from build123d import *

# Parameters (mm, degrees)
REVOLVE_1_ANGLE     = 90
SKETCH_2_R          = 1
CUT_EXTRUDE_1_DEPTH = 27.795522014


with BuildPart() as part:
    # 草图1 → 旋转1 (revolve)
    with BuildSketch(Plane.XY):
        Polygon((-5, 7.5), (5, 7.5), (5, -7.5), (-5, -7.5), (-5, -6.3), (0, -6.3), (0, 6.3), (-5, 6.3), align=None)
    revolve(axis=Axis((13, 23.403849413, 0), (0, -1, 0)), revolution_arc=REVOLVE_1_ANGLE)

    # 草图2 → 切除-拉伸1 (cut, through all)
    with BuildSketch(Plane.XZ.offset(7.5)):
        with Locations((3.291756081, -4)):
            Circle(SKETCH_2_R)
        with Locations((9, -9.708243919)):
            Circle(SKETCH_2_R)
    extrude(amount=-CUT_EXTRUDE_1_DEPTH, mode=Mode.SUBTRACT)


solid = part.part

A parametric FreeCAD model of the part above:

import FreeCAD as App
import Part
import Sketcher
from FreeCAD import Vector
Q = App.Units.Quantity


def add_polygon(sketch, points):
    """Adds a closed chain of lines whose ends are joined by coincident constraints."""
    first, n = sketch.GeometryCount, len(points)
    for a, b in zip(points, points[1:] + points[:1]):
        sketch.addGeometry(Part.LineSegment(App.Vector(*a, 0), App.Vector(*b, 0)), False)
    for i in range(n):
        sketch.addConstraint(Sketcher.Constraint("Coincident", first + i, 2, first + (i + 1) % n, 1))

doc = App.newDocument("Part")
params = doc.addObject("Spreadsheet::Sheet", "Params")
for row, (alias, value) in enumerate([
    ("sketch1_width", "10 mm"),
    ("sketch1_height", "15 mm"),
    ("sketch1_height2", "1.2 mm"),
    ("revolution_angle", "90 deg"),
    ("sketch2_diameter", "2 mm"),
], start=1):
    params.set(f"A{row}", alias)
    params.set(f"B{row}", "=" + value)
    params.setAlias(f"B{row}", alias)

body = doc.addObject("PartDesign::Body", "Body")

sketch1 = doc.addObject("Sketcher::SketchObject", "Sketch")
body.addObject(sketch1)
sketch1.AttachmentSupport = (doc.XY_Plane, [""])
sketch1.MapMode = "FlatFace"
add_polygon(sketch1, [(5, 7.5), (-5, 7.5), (-5, 6.3), (0, 6.3), (0, -6.3), (-5, -6.3), (-5, -7.5), (5, -7.5)])
sketch1.addGeometry(Part.LineSegment(Vector(13, 7.5, 0), Vector(13, -7.5, 0)), True)
sketch1.addConstraint([
    Sketcher.Constraint("Horizontal", 0),
    Sketcher.Constraint("Vertical", 1),
    Sketcher.Constraint("Horizontal", 2),
    Sketcher.Constraint("Vertical", 3),
    Sketcher.Constraint("Horizontal", 4),
    Sketcher.Constraint("Vertical", 5),
    Sketcher.Constraint("Horizontal", 6),
    Sketcher.Constraint("Vertical", 7),
    Sketcher.Constraint("Vertical", 8),
    Sketcher.Constraint("Symmetric", 2, 2, 3, 2, -1, 1),
    Sketcher.Constraint("Symmetric", 0, 2, 6, 2, -1, 1),
    Sketcher.Constraint("Horizontal", 7, 2, 8, 1),
    Sketcher.Constraint("Horizontal", 6, 2, 8, 2),
    Sketcher.Constraint("Vertical", 1, 2, 4, 2),
    Sketcher.Constraint("DistanceX", 0, 2, 0, 1, Q("10 mm")),
    Sketcher.Constraint("DistanceY", 7, 1, 7, 2, Q("15 mm")),
    Sketcher.Constraint("DistanceY", 1, 2, 1, 1, Q("1.2 mm")),
    Sketcher.Constraint("DistanceX", -1, 1, 8, 1, Q("13 mm")),
])
sketch1.setExpression("Constraints[22]", "Params.sketch1_width")
sketch1.setExpression("Constraints[23]", "Params.sketch1_height")
sketch1.setExpression("Constraints[24]", "Params.sketch1_height2")
revolution = doc.addObject("PartDesign::Revolution", "Revolution")
body.addObject(revolution)
revolution.Profile = sketch1
revolution.ReferenceAxis = (sketch1, ["Axis0"])
revolution.setExpression("Angle", "Params.revolution_angle")

sketch2 = doc.addObject("Sketcher::SketchObject", "Sketch001")
body.addObject(sketch2)
sketch2.AttachmentSupport = (doc.XZ_Plane, [""])
sketch2.MapMode = "FlatFace"
sketch2.AttachmentOffset = App.Placement(Vector(0, 0, 7.5), App.Rotation())
sketch2.addGeometry([
    Part.Circle(Vector(3.3, -4, 0), Vector(0, 0, 1), 1),
    Part.Circle(Vector(9, -9.7, 0), Vector(0, 0, 1), 1),
], False)
sketch2.addConstraint([
    Sketcher.Constraint("Equal", 0, 1),
    Sketcher.Constraint("Diameter", 0, Q("2 mm")),
    Sketcher.Constraint("DistanceY", 0, 3, -1, 1, Q("4 mm")),
    Sketcher.Constraint("DistanceX", -1, 1, 1, 3, Q("9 mm")),
    Sketcher.Constraint("DistanceX", -1, 1, 0, 3, Q("3.291756 mm")),
    Sketcher.Constraint("DistanceY", 1, 3, -1, 1, Q("9.708244 mm")),
])
sketch2.setExpression("Constraints[1]", "Params.sketch2_diameter")
pocket1 = doc.addObject("PartDesign::Pocket", "Pocket")
body.addObject(pocket1)
pocket1.Profile = sketch2
pocket1.Type = "ThroughAll"

doc.recompute()
